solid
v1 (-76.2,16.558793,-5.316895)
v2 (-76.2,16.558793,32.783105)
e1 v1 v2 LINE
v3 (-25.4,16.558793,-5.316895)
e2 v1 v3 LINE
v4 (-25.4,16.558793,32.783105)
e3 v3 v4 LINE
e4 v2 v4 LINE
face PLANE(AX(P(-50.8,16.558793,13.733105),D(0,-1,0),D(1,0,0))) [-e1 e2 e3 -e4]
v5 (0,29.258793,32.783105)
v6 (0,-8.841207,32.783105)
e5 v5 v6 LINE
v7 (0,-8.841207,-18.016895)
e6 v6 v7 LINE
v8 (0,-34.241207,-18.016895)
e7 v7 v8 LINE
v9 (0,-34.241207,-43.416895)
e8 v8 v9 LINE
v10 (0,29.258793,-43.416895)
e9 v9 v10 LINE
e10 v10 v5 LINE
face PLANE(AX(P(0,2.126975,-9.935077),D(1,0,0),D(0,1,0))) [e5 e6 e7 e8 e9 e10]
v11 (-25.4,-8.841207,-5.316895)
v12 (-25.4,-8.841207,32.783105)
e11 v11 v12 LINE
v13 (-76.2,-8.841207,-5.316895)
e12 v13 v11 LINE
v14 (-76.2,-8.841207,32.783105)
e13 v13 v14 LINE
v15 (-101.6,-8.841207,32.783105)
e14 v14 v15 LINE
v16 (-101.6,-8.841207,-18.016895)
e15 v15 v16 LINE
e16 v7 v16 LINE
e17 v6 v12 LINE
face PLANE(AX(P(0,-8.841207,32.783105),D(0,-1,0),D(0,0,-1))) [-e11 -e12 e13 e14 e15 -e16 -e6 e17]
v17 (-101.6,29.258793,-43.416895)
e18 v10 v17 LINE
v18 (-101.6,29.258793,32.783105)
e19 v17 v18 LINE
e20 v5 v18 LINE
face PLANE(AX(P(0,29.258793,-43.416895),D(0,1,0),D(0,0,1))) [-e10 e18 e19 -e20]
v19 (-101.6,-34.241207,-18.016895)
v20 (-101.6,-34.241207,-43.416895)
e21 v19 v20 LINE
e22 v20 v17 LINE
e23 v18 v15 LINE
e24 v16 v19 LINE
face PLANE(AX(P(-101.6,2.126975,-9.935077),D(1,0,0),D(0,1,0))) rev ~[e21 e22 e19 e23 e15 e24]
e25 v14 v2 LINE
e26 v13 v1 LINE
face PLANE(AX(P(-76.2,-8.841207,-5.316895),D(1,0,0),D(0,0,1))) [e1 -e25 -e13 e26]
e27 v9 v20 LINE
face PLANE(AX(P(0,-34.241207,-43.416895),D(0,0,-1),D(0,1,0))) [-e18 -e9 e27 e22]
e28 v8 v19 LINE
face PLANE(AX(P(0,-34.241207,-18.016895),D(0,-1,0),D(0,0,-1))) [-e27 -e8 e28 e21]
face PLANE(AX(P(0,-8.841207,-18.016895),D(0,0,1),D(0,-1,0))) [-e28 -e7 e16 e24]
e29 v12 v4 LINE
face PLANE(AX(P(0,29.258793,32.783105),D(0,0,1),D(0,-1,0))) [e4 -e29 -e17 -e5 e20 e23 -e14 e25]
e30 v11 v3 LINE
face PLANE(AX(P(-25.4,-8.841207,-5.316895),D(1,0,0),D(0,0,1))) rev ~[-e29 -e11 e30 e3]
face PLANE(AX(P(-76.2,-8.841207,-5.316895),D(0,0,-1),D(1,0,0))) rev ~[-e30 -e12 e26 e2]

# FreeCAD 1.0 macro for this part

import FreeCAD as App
import Part
import Sketcher

V = App.Vector
Q = App.Units.Quantity

doc = App.newDocument("Part")
body = doc.addObject("PartDesign::Body", "Body")

# Sketch on YZ plane
sketch1 = body.newObject("Sketcher::SketchObject", "Sketch")
sketch1.AttachmentSupport = (doc.getObject("YZ_Plane"), [""])
sketch1.MapMode = "FlatFace"
sketch1.addGeometry(Part.LineSegment(V(-34, -18, 0), V(-34, -43, 0)), False)
sketch1.addGeometry(Part.LineSegment(V(-34, -43, 0), V(29, -43, 0)), False)
sketch1.addGeometry(Part.LineSegment(V(29, -43, 0), V(29, 33, 0)), False)
sketch1.addGeometry(Part.LineSegment(V(29, 33, 0), V(-9, 33, 0)), False)
sketch1.addGeometry(Part.LineSegment(V(-9, 33, 0), V(-9, -18, 0)), False)
sketch1.addGeometry(Part.LineSegment(V(-9, -18, 0), V(-34, -18, 0)), False)
sketch1.addConstraint(Sketcher.Constraint("Coincident", 0, 2, 1, 1))
sketch1.addConstraint(Sketcher.Constraint("Coincident", 1, 2, 2, 1))
sketch1.addConstraint(Sketcher.Constraint("Coincident", 2, 2, 3, 1))
sketch1.addConstraint(Sketcher.Constraint("Coincident", 3, 2, 4, 1))
sketch1.addConstraint(Sketcher.Constraint("Coincident", 4, 2, 5, 1))
sketch1.addConstraint(Sketcher.Constraint("Coincident", 5, 2, 0, 1))
sketch1.addConstraint(Sketcher.Constraint("Vertical", 0))
sketch1.addConstraint(Sketcher.Constraint("Horizontal", 1))
sketch1.addConstraint(Sketcher.Constraint("Vertical", 2))
sketch1.addConstraint(Sketcher.Constraint("Horizontal", 3))
sketch1.addConstraint(Sketcher.Constraint("Vertical", 4))
sketch1.addConstraint(Sketcher.Constraint("Horizontal", 5))
sketch1.addConstraint(Sketcher.Constraint("Equal", 5, 0))
sketch1.addConstraint(Sketcher.Constraint("DistanceX", 5, 2, 5, 1, Q("1 in")))
sketch1.addConstraint(Sketcher.Constraint("DistanceY", 2, 1, 2, 2, Q("3 in")))
sketch1.addConstraint(Sketcher.Constraint("DistanceX", 1, 1, 1, 2, Q("2.5 in")))
sketch1.addConstraint(Sketcher.Constraint("DistanceX", 0, 2, -1, 1, 34.241207))
sketch1.addConstraint(Sketcher.Constraint("DistanceY", 0, 2, -1, 1, 43.416895))
pad1 = body.newObject("PartDesign::Pad", "Pad")
pad1.Profile = sketch1
pad1.Length = Q("4 in")
pad1.Reversed = True

# Sketch on XZ plane
sketch2 = body.newObject("Sketcher::SketchObject", "Sketch001")
sketch2.AttachmentSupport = (doc.getObject("XZ_Plane"), [""])
sketch2.MapMode = "FlatFace"
sketch2.AttachmentOffset = App.Placement(V(0, 0, 8.841207), App.Rotation())
sketch2.addGeometry(Part.LineSegment(V(-76, 33, 0), V(-76, -5, 0)), False)
sketch2.addGeometry(Part.LineSegment(V(-76, -5, 0), V(-25, -5, 0)), False)
sketch2.addGeometry(Part.LineSegment(V(-25, -5, 0), V(-25, 33, 0)), False)
sketch2.addGeometry(Part.LineSegment(V(-25, 33, 0), V(-76, 33, 0)), False)
sketch2.addConstraint(Sketcher.Constraint("Coincident", 0, 2, 1, 1))
sketch2.addConstraint(Sketcher.Constraint("Coincident", 1, 2, 2, 1))
sketch2.addConstraint(Sketcher.Constraint("Coincident", 2, 2, 3, 1))
sketch2.addConstraint(Sketcher.Constraint("Coincident", 3, 2, 0, 1))
sketch2.addConstraint(Sketcher.Constraint("Vertical", 0))
sketch2.addConstraint(Sketcher.Constraint("Horizontal", 1))
sketch2.addConstraint(Sketcher.Constraint("Vertical", 2))
sketch2.addConstraint(Sketcher.Constraint("Horizontal", 3))
sketch2.addConstraint(Sketcher.Constraint("DistanceX", 1, 1, 1, 2, Q("2 in")))
sketch2.addConstraint(Sketcher.Constraint("DistanceY", 0, 2, 0, 1, Q("1.5 in")))
sketch2.addConstraint(Sketcher.Constraint("DistanceX", 0, 2, -1, 1, Q("3 in")))
sketch2.addConstraint(Sketcher.Constraint("DistanceY", 0, 2, -1, 1, 5.316895))
pocket1 = body.newObject("PartDesign::Pocket", "Pocket")
pocket1.Profile = sketch2
pocket1.Length = Q("1 in")

doc.recompute()
